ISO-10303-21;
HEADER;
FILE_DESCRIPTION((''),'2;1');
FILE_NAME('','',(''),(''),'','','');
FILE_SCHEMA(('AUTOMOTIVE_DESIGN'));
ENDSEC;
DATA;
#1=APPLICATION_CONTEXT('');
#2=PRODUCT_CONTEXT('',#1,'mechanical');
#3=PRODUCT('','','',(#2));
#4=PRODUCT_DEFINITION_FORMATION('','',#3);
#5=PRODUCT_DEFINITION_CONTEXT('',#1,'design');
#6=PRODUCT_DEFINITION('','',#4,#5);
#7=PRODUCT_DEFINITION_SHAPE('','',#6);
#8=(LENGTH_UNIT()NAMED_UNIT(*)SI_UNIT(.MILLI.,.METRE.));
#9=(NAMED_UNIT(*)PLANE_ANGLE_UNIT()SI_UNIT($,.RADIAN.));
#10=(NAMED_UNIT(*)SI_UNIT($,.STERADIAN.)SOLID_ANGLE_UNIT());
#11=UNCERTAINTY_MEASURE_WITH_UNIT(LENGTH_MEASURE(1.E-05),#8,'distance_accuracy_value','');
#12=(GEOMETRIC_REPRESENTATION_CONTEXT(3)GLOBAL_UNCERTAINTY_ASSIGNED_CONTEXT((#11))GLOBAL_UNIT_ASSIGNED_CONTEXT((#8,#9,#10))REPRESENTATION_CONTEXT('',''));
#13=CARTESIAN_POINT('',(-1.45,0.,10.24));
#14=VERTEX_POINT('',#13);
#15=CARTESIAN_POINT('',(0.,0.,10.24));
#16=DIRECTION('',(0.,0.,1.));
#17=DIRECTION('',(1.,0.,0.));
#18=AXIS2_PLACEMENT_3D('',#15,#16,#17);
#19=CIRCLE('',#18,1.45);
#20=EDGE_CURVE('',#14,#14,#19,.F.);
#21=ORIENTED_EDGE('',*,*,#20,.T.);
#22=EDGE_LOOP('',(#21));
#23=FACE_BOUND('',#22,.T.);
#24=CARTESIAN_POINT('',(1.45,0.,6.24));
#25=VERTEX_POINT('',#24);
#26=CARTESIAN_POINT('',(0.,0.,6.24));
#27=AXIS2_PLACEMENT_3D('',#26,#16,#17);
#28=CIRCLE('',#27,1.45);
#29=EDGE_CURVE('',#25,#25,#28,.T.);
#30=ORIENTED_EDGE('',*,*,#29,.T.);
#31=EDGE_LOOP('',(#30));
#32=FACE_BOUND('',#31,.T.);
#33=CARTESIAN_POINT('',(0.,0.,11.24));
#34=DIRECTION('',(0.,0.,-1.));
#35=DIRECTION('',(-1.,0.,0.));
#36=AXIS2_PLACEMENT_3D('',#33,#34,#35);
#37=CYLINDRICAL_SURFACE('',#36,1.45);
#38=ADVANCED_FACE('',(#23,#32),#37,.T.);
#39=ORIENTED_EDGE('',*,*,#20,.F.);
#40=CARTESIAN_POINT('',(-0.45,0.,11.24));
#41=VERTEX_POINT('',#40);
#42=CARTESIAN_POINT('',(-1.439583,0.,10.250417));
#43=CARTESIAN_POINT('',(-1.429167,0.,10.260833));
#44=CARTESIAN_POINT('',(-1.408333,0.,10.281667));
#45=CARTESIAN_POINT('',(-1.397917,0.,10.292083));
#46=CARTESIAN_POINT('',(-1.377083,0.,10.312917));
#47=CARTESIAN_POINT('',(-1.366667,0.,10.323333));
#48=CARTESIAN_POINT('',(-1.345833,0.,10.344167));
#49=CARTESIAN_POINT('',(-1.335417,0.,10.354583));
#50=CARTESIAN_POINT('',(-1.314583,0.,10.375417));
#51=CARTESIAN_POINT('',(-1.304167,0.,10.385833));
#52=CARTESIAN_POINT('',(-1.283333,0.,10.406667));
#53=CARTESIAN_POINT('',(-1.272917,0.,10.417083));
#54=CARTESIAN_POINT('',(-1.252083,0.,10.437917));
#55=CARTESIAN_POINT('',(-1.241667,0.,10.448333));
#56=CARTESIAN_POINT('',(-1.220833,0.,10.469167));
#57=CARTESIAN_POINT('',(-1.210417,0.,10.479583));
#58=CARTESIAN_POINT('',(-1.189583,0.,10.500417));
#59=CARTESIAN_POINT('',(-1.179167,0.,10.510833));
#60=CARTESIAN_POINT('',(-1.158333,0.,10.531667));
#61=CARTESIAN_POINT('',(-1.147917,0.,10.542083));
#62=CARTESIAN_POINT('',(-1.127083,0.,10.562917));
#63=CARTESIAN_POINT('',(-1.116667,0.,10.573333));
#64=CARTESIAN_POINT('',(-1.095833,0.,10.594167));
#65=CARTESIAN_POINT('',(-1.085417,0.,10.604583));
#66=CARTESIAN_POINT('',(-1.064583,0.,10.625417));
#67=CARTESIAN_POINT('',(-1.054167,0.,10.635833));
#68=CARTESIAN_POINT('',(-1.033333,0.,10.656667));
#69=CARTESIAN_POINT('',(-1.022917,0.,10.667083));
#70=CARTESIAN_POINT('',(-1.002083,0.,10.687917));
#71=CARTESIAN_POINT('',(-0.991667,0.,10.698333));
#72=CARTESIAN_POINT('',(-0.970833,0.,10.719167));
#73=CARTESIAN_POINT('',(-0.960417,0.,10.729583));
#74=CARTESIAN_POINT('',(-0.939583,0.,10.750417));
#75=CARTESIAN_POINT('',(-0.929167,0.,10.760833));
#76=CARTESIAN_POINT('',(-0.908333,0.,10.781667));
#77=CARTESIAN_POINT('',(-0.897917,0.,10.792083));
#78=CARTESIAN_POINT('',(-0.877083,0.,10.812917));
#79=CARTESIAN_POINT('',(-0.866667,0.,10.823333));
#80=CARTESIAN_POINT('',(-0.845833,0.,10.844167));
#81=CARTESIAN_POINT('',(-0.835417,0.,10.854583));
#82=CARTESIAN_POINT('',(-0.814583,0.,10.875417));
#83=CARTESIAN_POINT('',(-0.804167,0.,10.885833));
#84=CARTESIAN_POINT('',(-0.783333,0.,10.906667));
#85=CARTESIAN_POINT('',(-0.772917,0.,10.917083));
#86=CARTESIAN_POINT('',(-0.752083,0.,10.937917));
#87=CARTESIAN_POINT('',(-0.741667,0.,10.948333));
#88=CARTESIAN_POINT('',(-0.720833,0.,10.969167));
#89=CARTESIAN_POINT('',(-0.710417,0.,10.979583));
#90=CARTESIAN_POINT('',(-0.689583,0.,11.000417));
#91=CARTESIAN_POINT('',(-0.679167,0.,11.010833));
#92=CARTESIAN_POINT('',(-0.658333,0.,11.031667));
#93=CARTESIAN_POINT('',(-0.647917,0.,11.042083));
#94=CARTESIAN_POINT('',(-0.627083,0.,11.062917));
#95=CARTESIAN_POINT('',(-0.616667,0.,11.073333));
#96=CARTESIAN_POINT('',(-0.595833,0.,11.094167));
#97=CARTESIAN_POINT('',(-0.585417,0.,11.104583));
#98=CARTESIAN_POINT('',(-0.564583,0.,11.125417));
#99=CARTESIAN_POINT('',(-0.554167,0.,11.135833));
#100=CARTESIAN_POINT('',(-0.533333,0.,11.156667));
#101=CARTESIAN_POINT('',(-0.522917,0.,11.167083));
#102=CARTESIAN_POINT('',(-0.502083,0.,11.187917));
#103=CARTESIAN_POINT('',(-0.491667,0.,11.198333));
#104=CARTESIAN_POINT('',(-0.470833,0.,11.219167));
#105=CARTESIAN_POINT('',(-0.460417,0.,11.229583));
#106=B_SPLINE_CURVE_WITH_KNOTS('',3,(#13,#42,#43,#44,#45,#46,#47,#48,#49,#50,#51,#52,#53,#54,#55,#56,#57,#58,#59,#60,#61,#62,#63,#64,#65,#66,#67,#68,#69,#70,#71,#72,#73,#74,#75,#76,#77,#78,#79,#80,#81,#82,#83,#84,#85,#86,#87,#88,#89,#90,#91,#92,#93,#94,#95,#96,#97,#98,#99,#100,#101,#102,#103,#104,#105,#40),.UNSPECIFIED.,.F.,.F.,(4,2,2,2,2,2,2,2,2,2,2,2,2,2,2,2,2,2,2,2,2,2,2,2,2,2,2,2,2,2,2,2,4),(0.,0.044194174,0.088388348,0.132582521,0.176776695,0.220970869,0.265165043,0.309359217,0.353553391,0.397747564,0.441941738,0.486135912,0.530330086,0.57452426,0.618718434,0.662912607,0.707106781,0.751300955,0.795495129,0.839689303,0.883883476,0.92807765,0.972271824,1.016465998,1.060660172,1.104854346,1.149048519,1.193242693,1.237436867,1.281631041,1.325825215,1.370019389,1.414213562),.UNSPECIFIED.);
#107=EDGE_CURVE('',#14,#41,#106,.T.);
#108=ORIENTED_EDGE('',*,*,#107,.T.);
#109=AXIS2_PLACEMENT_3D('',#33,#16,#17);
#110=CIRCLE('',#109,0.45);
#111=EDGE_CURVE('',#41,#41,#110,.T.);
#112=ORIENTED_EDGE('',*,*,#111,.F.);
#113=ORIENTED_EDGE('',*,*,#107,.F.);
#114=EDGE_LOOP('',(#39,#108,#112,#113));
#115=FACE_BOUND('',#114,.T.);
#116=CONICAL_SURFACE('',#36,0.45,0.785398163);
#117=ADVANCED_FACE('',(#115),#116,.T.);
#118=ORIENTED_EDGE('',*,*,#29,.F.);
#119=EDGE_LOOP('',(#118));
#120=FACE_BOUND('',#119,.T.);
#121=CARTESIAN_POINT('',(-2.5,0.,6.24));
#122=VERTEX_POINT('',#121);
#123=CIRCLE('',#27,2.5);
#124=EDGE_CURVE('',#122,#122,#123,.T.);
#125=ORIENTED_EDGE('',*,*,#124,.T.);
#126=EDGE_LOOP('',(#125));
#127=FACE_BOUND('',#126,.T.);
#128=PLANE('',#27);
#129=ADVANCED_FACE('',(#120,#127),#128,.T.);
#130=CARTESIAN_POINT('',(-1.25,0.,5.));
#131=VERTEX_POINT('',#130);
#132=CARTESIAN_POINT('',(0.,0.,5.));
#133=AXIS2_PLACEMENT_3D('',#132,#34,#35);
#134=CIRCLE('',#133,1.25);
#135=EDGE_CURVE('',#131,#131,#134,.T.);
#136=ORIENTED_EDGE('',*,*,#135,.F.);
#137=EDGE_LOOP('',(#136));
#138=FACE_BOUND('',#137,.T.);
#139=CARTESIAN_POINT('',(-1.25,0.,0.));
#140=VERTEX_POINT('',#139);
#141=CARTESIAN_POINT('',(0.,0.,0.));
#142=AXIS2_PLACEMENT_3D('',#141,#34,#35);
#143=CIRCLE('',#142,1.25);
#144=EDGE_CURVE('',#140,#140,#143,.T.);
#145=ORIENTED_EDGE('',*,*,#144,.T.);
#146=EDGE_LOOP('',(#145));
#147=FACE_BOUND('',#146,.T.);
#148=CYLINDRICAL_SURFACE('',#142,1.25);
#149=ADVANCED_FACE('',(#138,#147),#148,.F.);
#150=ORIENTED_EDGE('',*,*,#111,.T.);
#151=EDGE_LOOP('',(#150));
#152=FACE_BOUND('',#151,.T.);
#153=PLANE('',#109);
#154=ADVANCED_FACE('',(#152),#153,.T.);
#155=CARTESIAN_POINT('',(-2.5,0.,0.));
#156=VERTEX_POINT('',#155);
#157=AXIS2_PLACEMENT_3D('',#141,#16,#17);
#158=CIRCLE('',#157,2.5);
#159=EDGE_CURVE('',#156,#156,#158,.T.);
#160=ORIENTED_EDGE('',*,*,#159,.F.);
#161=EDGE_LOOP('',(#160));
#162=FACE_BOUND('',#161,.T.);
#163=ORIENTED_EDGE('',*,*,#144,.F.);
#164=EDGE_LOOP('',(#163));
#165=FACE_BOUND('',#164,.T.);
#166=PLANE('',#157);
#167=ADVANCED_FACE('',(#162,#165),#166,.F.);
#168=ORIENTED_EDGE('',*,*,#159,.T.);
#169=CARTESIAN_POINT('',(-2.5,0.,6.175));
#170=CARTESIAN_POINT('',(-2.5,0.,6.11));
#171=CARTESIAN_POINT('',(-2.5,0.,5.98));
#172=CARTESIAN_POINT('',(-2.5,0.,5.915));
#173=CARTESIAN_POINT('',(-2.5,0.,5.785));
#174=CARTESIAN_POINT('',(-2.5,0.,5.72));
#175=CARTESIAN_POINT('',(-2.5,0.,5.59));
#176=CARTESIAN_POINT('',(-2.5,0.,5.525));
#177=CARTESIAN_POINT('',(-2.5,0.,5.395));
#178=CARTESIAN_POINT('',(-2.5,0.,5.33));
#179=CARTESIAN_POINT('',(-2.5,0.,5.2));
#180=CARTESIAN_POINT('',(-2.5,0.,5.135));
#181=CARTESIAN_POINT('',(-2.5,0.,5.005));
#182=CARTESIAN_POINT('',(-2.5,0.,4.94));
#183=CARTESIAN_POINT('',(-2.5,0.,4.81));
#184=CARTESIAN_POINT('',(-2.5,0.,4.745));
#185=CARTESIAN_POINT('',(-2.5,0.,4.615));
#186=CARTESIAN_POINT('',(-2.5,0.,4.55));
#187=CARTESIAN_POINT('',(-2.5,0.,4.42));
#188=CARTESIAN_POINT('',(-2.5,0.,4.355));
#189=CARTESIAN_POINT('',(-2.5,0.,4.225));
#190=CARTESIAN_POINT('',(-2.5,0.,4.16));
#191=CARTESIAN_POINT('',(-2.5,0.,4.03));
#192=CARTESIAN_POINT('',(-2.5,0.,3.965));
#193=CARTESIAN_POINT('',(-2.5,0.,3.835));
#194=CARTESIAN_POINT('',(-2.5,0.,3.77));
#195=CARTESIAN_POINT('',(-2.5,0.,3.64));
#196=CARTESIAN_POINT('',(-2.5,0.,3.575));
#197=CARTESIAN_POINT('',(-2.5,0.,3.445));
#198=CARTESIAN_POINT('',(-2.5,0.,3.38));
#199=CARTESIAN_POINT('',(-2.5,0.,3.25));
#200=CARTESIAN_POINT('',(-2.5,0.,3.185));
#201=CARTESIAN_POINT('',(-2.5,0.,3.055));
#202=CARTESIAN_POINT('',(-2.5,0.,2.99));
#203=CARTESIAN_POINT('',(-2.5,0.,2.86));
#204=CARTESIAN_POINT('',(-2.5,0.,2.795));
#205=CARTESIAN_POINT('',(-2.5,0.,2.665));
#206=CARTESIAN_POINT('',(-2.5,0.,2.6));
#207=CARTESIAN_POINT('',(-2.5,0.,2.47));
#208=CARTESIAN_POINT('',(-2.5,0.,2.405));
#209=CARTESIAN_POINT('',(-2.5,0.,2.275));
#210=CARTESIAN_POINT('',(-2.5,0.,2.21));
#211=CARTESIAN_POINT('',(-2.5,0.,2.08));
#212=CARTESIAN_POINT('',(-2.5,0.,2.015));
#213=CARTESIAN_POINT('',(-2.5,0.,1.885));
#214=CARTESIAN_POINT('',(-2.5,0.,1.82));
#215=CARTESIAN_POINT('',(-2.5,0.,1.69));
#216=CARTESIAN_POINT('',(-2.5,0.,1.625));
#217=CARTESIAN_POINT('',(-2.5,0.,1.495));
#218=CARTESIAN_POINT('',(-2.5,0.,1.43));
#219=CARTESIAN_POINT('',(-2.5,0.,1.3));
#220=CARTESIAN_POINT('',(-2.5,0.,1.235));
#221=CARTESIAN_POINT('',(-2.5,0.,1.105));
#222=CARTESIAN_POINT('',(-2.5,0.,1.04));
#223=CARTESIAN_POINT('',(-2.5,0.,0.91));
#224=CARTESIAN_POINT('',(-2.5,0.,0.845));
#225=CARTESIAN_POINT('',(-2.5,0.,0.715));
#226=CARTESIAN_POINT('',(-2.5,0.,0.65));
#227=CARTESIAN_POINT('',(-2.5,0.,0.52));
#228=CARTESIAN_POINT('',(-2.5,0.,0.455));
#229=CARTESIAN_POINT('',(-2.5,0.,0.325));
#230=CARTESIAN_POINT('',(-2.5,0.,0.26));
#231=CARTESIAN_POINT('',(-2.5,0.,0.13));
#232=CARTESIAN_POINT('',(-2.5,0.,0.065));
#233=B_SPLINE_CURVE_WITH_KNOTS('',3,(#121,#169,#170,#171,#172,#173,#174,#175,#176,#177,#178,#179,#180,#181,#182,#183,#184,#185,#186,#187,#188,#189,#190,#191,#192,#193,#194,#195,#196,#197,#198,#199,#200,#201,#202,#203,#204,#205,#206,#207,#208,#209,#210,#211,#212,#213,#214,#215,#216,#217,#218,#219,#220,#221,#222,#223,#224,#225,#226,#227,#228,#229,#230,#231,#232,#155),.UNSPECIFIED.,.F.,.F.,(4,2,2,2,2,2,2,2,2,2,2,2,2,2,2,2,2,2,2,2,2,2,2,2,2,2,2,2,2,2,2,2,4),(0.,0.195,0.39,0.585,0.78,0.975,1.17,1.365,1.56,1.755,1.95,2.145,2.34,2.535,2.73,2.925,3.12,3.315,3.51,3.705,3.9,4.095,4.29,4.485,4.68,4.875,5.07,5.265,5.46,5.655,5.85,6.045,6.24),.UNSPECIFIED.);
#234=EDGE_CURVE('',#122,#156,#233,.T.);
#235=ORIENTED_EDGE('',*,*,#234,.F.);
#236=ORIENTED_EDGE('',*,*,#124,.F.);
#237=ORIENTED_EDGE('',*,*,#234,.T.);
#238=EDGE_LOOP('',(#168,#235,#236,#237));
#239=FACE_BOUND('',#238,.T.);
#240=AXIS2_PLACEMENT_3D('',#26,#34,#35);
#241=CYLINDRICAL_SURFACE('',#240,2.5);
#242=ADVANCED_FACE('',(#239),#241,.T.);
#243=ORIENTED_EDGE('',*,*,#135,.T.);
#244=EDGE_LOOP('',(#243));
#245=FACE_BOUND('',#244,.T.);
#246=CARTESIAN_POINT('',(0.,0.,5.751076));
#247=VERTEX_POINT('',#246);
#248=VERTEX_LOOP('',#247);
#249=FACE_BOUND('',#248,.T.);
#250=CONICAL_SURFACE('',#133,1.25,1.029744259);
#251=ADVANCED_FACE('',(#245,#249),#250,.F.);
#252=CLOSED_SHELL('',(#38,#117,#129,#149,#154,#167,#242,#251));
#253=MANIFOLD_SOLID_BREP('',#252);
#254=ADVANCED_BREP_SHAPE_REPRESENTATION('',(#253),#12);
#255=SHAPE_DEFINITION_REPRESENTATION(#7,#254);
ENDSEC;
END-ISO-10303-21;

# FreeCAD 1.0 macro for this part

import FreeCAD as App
import Part
import Sketcher
from FreeCAD import Vector


def edges_at(feature, points):
    """Names of the edges that pass closest to the given points."""
    edges = feature.Shape.Edges
    near = lambda p: min(range(len(edges)), key=lambda i: edges[i].distToShape(Part.Vertex(*p))[0])
    return sorted({f"Edge{near(p) + 1}" for p in points})

doc = App.newDocument("Part")
body = doc.addObject("PartDesign::Body", "Body")

sketch1 = body.newObject("Sketcher::SketchObject", "Sketch")
sketch1.AttachmentSupport = (doc.getObject("XY_Plane"), [""])
sketch1.MapMode = "FlatFace"
sketch1.addGeometry(Part.Circle(Vector(0, 0, 0), Vector(0, 0, 1), 2.5), False)
sketch1.addConstraint(Sketcher.Constraint("Coincident", 0, 3, -1, 1))
sketch1.addConstraint(Sketcher.Constraint("Diameter", 0, 5.0))
pad1 = body.newObject("PartDesign::Pad", "Pad")
pad1.Profile = sketch1
pad1.Length = 6.24

sketch2 = body.newObject("Sketcher::SketchObject", "Sketch001")
sketch2.AttachmentSupport = (doc.getObject("XY_Plane"), [""])
sketch2.MapMode = "FlatFace"
sketch2.AttachmentOffset = App.Placement(Vector(0, 0, 6.24), App.Rotation())
sketch2.addGeometry(Part.Circle(Vector(0, 0, 0), Vector(0, 0, 1), 1.4), False)
sketch2.addConstraint(Sketcher.Constraint("Coincident", 0, 3, -1, 1))
sketch2.addConstraint(Sketcher.Constraint("Diameter", 0, 2.9))
pad2 = body.newObject("PartDesign::Pad", "Pad001")
pad2.Profile = sketch2
pad2.Length = 5

sketch3 = body.newObject("Sketcher::SketchObject", "Sketch002")
sketch3.AttachmentSupport = (doc.getObject("XY_Plane"), [""])
sketch3.MapMode = "FlatFace"
sketch3.addGeometry(Part.Circle(Vector(0, 0, 0), Vector(0, 0, 1), 1.2), False)
sketch3.addConstraint(Sketcher.Constraint("Coincident", 0, 3, -1, 1))
sketch3.addConstraint(Sketcher.Constraint("Diameter", 0, 2.5))
doc.recompute()
hole = body.newObject("PartDesign::Hole", "Hole")
hole.Profile = sketch3
hole.ThreadType = "None"
hole.Diameter = 2.5
hole.DepthType = "Dimension"
hole.Depth = 5
hole.DrillPoint = "Angled"
hole.DrillPointAngle = 118
hole.Reversed = True
doc.recompute()

chamfer = body.newObject("PartDesign::Chamfer", "Chamfer")
chamfer.Base = (hole, edges_at(hole, [(-1.45, 0, 11.24)]))
chamfer.Size = 1

doc.recompute()
